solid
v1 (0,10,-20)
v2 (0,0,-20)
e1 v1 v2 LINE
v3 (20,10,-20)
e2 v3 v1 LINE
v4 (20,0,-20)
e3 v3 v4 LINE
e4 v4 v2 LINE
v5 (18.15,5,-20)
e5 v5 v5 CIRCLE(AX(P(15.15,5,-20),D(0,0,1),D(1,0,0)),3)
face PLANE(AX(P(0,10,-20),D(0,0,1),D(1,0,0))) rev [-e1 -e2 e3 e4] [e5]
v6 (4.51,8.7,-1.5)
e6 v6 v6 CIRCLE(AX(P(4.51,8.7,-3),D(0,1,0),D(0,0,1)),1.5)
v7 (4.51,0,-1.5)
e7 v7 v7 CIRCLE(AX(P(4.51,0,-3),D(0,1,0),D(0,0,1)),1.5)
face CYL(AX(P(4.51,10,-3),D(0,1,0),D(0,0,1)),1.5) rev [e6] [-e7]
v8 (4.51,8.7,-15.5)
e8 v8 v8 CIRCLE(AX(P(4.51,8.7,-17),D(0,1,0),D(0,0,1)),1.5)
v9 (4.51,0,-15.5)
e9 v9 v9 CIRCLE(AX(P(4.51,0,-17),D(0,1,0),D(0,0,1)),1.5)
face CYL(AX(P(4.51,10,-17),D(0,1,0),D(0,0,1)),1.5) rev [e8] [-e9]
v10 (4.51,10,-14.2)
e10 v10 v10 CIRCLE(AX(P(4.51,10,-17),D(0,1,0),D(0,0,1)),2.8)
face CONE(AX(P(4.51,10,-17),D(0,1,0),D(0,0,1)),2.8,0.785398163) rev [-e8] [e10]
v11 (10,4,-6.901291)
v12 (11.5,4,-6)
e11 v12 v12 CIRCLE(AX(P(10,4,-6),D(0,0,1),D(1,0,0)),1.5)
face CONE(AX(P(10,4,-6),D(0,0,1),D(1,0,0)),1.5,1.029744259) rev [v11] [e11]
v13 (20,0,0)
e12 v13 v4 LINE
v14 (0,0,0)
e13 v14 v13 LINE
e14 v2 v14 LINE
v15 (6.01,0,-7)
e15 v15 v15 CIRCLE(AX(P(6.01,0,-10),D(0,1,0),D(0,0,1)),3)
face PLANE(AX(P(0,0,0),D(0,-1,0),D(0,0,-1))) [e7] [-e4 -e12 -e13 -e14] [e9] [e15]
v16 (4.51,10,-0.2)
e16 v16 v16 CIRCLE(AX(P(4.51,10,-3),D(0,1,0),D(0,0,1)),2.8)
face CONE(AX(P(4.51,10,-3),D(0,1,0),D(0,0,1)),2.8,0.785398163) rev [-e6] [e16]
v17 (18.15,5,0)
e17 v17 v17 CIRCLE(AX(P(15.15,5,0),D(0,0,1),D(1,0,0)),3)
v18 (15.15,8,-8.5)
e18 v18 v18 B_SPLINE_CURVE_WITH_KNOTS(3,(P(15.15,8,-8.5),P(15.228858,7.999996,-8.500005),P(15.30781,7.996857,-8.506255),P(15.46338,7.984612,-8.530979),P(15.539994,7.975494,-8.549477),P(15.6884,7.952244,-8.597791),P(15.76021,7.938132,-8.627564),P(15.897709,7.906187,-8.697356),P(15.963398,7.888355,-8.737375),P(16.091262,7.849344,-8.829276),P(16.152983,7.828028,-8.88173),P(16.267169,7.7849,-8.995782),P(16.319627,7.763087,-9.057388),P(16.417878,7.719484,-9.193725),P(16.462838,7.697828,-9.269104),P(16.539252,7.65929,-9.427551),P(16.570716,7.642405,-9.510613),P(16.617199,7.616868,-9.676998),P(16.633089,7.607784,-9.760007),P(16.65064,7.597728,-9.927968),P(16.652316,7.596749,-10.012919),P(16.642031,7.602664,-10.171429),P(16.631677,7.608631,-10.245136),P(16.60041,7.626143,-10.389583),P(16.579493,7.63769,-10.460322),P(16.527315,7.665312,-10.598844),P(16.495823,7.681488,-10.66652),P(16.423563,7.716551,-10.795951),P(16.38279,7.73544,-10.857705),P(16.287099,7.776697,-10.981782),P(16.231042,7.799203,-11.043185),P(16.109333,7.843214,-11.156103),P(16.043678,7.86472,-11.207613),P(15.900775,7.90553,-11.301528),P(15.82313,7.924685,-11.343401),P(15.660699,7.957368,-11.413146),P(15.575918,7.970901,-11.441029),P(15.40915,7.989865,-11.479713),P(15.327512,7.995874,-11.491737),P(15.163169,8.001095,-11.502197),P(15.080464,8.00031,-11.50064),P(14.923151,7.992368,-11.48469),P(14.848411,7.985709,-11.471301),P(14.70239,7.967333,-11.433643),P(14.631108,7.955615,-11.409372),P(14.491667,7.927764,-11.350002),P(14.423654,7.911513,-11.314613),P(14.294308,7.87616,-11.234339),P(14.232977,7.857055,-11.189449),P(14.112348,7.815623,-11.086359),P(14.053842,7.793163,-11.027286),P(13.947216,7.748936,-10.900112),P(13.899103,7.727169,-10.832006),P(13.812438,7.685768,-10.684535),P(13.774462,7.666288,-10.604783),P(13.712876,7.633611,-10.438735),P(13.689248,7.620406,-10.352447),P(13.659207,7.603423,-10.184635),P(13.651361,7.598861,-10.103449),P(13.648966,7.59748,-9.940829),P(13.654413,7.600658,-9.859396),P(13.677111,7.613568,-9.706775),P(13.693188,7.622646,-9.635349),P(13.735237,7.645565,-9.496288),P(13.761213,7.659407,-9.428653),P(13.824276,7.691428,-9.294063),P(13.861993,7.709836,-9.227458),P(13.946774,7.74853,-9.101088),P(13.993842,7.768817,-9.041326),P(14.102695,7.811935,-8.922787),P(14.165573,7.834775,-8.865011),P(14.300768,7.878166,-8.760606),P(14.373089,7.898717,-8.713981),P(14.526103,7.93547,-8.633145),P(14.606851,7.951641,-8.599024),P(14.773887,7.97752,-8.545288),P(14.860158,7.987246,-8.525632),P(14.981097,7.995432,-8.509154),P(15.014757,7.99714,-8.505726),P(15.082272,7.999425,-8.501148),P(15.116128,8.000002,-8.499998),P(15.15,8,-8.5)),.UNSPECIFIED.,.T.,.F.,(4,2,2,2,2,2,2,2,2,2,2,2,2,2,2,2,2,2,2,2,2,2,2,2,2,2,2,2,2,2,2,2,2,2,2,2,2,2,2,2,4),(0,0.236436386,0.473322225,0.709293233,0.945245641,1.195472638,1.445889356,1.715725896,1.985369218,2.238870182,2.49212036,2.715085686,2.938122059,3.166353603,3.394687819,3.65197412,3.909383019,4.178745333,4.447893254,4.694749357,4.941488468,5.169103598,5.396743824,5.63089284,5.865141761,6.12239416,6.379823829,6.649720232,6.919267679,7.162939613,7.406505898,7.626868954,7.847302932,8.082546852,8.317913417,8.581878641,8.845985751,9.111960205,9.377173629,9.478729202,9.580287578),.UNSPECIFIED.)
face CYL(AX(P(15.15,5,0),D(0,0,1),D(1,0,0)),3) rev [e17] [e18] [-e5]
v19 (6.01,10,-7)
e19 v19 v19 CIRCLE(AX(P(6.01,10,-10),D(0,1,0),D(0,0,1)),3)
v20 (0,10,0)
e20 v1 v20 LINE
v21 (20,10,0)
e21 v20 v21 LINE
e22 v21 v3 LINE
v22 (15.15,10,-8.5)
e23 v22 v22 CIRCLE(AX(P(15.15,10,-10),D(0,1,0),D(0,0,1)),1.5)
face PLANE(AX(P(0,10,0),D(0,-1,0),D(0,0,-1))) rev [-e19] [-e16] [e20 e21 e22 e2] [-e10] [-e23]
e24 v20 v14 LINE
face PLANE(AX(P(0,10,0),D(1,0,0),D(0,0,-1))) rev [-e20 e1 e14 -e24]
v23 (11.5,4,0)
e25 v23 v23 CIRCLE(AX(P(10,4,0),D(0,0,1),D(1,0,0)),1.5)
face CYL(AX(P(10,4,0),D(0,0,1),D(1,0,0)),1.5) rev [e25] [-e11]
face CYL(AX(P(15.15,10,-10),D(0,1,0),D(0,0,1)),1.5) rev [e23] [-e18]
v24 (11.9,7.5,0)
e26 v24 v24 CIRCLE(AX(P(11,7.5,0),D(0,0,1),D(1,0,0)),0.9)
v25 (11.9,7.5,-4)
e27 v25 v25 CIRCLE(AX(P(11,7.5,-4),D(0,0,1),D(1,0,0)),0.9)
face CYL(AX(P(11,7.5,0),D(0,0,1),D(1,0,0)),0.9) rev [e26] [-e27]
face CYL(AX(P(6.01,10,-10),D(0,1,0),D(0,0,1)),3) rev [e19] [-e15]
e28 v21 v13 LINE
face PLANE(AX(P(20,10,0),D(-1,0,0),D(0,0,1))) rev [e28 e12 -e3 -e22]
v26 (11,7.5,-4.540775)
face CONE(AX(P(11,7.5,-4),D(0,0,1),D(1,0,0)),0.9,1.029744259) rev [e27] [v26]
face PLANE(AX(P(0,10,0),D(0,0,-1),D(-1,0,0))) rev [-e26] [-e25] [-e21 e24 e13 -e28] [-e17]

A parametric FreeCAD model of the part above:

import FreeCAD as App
import Part
import Sketcher

doc = App.newDocument("Part")
body = doc.addObject("PartDesign::Body", "Body")

# Sketch on XZ plane
sketch1 = body.newObject("Sketcher::SketchObject", "Sketch")
sketch1.AttachmentSupport = (doc.getObject("XZ_Plane"), [""])
sketch1.MapMode = "FlatFace"
sketch1.addGeometry([
    Part.LineSegment(App.Vector(0, -20, 0), App.Vector(0, 0, 0)),
    Part.LineSegment(App.Vector(0, 0, 0), App.Vector(20, 0, 0)),
    Part.LineSegment(App.Vector(20, 0, 0), App.Vector(20, -20, 0)),
    Part.LineSegment(App.Vector(20, -20, 0), App.Vector(0, -20, 0)),
], False)
sketch1.addConstraint([
    Sketcher.Constraint("Coincident", 0, 2, 1, 1),
    Sketcher.Constraint("Coincident", 1, 2, 2, 1),
    Sketcher.Constraint("Coincident", 2, 2, 3, 1),
    Sketcher.Constraint("Coincident", 3, 2, 0, 1),
    Sketcher.Constraint("Vertical", 0),
    Sketcher.Constraint("Horizontal", 1),
    Sketcher.Constraint("Vertical", 2),
    Sketcher.Constraint("Horizontal", 3),
    Sketcher.Constraint("Coincident", 0, 2, -1, 1),
    Sketcher.Constraint("Equal", 3, 0),
    Sketcher.Constraint("DistanceX", 1, 1, 1, 2, 20.0),
])
pad1 = body.newObject("PartDesign::Pad", "Pad")
pad1.Profile = sketch1
pad1.Length = 10
pad1.Reversed = True

# Sketch on XZ plane
sketch2 = body.newObject("Sketcher::SketchObject", "Sketch001")
sketch2.AttachmentSupport = (doc.getObject("XZ_Plane"), [""])
sketch2.MapMode = "FlatFace"
sketch2.AttachmentOffset = App.Placement(App.Vector(0, 0, -10), App.Rotation())
sketch2.addGeometry(Part.Circle(App.Vector(6.01, -10, 0), App.Vector(0, 0, 1), 3), False)
sketch2.addConstraint([
    Sketcher.Constraint("Diameter", 0, 6.0),
    Sketcher.Constraint("DistanceY", 0, 3, -1, 1, 10.0),
    Sketcher.Constraint("DistanceX", -1, 1, 0, 3, 6.01),
])
doc.recompute()
hole = body.newObject("PartDesign::Hole", "Hole")
hole.Profile = sketch2
hole.ThreadType = "None"
hole.Diameter = 6
hole.DepthType = "ThroughAll"
hole.Reversed = True

# Sketch on XZ plane
sketch3 = body.newObject("Sketcher::SketchObject", "Sketch002")
sketch3.AttachmentSupport = (doc.getObject("XZ_Plane"), [""])
sketch3.MapMode = "FlatFace"
sketch3.AttachmentOffset = App.Placement(App.Vector(0, 0, -10), App.Rotation())
sketch3.addGeometry([
    Part.Circle(App.Vector(4.51, -3, 0), App.Vector(0, 0, 1), 1.5),
    Part.Circle(App.Vector(4.51, -17, 0), App.Vector(0, 0, 1), 1.5),
], False)
sketch3.addConstraint([
    Sketcher.Constraint("Equal", 0, 1),
    Sketcher.Constraint("Vertical", 0, 3, 1, 3),
    Sketcher.Constraint("Diameter", 0, 3.0),
    Sketcher.Constraint("DistanceY", 0, 3, -1, 1, 3.0),
    Sketcher.Constraint("DistanceY", 1, 3, -1, 1, 17.0),
    Sketcher.Constraint("DistanceX", -1, 1, 0, 3, 4.51),
])
doc.recompute()
hole2 = body.newObject("PartDesign::Hole", "Hole001")
hole2.Profile = sketch3
hole2.ThreadType = "None"
hole2.Diameter = 3
hole2.DepthType = "ThroughAll"
hole2.HoleCutType = "Countersink"
hole2.HoleCutDiameter = 5.6
hole2.HoleCutCountersinkAngle = 90
hole2.Reversed = True

# Sketch on XY plane
sketch4 = body.newObject("Sketcher::SketchObject", "Sketch003")
sketch4.AttachmentSupport = (doc.getObject("XY_Plane"), [""])
sketch4.MapMode = "FlatFace"
sketch4.addGeometry(Part.Circle(App.Vector(15.15, 5, 0), App.Vector(0, 0, 1), 3), False)
sketch4.addConstraint([
    Sketcher.Constraint("Diameter", 0, 6.0),
    Sketcher.Constraint("DistanceY", -1, 1, 0, 3, 5.0),
    Sketcher.Constraint("DistanceX", -1, 1, 0, 3, 15.15),
])
doc.recompute()
hole3 = body.newObject("PartDesign::Hole", "Hole002")
hole3.Profile = sketch4
hole3.ThreadType = "None"
hole3.Diameter = 6
hole3.DepthType = "ThroughAll"

# Sketch on XZ plane
sketch5 = body.newObject("Sketcher::SketchObject", "Sketch004")
sketch5.AttachmentSupport = (doc.getObject("XZ_Plane"), [""])
sketch5.MapMode = "FlatFace"
sketch5.AttachmentOffset = App.Placement(App.Vector(0, 0, -10), App.Rotation())
sketch5.addGeometry(Part.Circle(App.Vector(15.15, -10, 0), App.Vector(0, 0, 1), 1.5), False)
sketch5.addConstraint([
    Sketcher.Constraint("Diameter", 0, 3.0),
    Sketcher.Constraint("DistanceY", 0, 3, -1, 1, 10.0),
    Sketcher.Constraint("DistanceX", -1, 1, 0, 3, 15.15),
])
pocket1 = body.newObject("PartDesign::Pocket", "Pocket")
pocket1.Profile = sketch5
pocket1.Type = "UpToFirst"
pocket1.Reversed = True

# Sketch on XY plane
sketch6 = body.newObject("Sketcher::SketchObject", "Sketch005")
sketch6.AttachmentSupport = (doc.getObject("XY_Plane"), [""])
sketch6.MapMode = "FlatFace"
sketch6.addGeometry(Part.Circle(App.Vector(10, 4, 0), App.Vector(0, 0, 1), 1.5), False)
sketch6.addConstraint([
    Sketcher.Constraint("Diameter", 0, 3.0),
    Sketcher.Constraint("DistanceX", -1, 1, 0, 3, 10.0),
    Sketcher.Constraint("DistanceY", -1, 1, 0, 3, 4.0),
])
doc.recompute()
hole4 = body.newObject("PartDesign::Hole", "Hole003")
hole4.Profile = sketch6
hole4.ThreadType = "None"
hole4.Diameter = 3
hole4.DepthType = "Dimension"
hole4.Depth = 6
hole4.DrillPoint = "Angled"
hole4.DrillPointAngle = 118

# Sketch on XY plane
sketch7 = body.newObject("Sketcher::SketchObject", "Sketch006")
sketch7.AttachmentSupport = (doc.getObject("XY_Plane"), [""])
sketch7.MapMode = "FlatFace"
sketch7.addGeometry(Part.Circle(App.Vector(11, 7.5, 0), App.Vector(0, 0, 1), 0.9), False)
sketch7.addConstraint([
    Sketcher.Constraint("Diameter", 0, 1.8),
    Sketcher.Constraint("DistanceX", -1, 1, 0, 3, 11.0),
    Sketcher.Constraint("DistanceY", -1, 1, 0, 3, 7.5),
])
doc.recompute()
hole5 = body.newObject("PartDesign::Hole", "Hole004")
hole5.Profile = sketch7
hole5.ThreadType = "None"
hole5.Diameter = 1.8
hole5.DepthType = "Dimension"
hole5.Depth = 4
hole5.DrillPoint = "Angled"
hole5.DrillPointAngle = 118

doc.recompute()
